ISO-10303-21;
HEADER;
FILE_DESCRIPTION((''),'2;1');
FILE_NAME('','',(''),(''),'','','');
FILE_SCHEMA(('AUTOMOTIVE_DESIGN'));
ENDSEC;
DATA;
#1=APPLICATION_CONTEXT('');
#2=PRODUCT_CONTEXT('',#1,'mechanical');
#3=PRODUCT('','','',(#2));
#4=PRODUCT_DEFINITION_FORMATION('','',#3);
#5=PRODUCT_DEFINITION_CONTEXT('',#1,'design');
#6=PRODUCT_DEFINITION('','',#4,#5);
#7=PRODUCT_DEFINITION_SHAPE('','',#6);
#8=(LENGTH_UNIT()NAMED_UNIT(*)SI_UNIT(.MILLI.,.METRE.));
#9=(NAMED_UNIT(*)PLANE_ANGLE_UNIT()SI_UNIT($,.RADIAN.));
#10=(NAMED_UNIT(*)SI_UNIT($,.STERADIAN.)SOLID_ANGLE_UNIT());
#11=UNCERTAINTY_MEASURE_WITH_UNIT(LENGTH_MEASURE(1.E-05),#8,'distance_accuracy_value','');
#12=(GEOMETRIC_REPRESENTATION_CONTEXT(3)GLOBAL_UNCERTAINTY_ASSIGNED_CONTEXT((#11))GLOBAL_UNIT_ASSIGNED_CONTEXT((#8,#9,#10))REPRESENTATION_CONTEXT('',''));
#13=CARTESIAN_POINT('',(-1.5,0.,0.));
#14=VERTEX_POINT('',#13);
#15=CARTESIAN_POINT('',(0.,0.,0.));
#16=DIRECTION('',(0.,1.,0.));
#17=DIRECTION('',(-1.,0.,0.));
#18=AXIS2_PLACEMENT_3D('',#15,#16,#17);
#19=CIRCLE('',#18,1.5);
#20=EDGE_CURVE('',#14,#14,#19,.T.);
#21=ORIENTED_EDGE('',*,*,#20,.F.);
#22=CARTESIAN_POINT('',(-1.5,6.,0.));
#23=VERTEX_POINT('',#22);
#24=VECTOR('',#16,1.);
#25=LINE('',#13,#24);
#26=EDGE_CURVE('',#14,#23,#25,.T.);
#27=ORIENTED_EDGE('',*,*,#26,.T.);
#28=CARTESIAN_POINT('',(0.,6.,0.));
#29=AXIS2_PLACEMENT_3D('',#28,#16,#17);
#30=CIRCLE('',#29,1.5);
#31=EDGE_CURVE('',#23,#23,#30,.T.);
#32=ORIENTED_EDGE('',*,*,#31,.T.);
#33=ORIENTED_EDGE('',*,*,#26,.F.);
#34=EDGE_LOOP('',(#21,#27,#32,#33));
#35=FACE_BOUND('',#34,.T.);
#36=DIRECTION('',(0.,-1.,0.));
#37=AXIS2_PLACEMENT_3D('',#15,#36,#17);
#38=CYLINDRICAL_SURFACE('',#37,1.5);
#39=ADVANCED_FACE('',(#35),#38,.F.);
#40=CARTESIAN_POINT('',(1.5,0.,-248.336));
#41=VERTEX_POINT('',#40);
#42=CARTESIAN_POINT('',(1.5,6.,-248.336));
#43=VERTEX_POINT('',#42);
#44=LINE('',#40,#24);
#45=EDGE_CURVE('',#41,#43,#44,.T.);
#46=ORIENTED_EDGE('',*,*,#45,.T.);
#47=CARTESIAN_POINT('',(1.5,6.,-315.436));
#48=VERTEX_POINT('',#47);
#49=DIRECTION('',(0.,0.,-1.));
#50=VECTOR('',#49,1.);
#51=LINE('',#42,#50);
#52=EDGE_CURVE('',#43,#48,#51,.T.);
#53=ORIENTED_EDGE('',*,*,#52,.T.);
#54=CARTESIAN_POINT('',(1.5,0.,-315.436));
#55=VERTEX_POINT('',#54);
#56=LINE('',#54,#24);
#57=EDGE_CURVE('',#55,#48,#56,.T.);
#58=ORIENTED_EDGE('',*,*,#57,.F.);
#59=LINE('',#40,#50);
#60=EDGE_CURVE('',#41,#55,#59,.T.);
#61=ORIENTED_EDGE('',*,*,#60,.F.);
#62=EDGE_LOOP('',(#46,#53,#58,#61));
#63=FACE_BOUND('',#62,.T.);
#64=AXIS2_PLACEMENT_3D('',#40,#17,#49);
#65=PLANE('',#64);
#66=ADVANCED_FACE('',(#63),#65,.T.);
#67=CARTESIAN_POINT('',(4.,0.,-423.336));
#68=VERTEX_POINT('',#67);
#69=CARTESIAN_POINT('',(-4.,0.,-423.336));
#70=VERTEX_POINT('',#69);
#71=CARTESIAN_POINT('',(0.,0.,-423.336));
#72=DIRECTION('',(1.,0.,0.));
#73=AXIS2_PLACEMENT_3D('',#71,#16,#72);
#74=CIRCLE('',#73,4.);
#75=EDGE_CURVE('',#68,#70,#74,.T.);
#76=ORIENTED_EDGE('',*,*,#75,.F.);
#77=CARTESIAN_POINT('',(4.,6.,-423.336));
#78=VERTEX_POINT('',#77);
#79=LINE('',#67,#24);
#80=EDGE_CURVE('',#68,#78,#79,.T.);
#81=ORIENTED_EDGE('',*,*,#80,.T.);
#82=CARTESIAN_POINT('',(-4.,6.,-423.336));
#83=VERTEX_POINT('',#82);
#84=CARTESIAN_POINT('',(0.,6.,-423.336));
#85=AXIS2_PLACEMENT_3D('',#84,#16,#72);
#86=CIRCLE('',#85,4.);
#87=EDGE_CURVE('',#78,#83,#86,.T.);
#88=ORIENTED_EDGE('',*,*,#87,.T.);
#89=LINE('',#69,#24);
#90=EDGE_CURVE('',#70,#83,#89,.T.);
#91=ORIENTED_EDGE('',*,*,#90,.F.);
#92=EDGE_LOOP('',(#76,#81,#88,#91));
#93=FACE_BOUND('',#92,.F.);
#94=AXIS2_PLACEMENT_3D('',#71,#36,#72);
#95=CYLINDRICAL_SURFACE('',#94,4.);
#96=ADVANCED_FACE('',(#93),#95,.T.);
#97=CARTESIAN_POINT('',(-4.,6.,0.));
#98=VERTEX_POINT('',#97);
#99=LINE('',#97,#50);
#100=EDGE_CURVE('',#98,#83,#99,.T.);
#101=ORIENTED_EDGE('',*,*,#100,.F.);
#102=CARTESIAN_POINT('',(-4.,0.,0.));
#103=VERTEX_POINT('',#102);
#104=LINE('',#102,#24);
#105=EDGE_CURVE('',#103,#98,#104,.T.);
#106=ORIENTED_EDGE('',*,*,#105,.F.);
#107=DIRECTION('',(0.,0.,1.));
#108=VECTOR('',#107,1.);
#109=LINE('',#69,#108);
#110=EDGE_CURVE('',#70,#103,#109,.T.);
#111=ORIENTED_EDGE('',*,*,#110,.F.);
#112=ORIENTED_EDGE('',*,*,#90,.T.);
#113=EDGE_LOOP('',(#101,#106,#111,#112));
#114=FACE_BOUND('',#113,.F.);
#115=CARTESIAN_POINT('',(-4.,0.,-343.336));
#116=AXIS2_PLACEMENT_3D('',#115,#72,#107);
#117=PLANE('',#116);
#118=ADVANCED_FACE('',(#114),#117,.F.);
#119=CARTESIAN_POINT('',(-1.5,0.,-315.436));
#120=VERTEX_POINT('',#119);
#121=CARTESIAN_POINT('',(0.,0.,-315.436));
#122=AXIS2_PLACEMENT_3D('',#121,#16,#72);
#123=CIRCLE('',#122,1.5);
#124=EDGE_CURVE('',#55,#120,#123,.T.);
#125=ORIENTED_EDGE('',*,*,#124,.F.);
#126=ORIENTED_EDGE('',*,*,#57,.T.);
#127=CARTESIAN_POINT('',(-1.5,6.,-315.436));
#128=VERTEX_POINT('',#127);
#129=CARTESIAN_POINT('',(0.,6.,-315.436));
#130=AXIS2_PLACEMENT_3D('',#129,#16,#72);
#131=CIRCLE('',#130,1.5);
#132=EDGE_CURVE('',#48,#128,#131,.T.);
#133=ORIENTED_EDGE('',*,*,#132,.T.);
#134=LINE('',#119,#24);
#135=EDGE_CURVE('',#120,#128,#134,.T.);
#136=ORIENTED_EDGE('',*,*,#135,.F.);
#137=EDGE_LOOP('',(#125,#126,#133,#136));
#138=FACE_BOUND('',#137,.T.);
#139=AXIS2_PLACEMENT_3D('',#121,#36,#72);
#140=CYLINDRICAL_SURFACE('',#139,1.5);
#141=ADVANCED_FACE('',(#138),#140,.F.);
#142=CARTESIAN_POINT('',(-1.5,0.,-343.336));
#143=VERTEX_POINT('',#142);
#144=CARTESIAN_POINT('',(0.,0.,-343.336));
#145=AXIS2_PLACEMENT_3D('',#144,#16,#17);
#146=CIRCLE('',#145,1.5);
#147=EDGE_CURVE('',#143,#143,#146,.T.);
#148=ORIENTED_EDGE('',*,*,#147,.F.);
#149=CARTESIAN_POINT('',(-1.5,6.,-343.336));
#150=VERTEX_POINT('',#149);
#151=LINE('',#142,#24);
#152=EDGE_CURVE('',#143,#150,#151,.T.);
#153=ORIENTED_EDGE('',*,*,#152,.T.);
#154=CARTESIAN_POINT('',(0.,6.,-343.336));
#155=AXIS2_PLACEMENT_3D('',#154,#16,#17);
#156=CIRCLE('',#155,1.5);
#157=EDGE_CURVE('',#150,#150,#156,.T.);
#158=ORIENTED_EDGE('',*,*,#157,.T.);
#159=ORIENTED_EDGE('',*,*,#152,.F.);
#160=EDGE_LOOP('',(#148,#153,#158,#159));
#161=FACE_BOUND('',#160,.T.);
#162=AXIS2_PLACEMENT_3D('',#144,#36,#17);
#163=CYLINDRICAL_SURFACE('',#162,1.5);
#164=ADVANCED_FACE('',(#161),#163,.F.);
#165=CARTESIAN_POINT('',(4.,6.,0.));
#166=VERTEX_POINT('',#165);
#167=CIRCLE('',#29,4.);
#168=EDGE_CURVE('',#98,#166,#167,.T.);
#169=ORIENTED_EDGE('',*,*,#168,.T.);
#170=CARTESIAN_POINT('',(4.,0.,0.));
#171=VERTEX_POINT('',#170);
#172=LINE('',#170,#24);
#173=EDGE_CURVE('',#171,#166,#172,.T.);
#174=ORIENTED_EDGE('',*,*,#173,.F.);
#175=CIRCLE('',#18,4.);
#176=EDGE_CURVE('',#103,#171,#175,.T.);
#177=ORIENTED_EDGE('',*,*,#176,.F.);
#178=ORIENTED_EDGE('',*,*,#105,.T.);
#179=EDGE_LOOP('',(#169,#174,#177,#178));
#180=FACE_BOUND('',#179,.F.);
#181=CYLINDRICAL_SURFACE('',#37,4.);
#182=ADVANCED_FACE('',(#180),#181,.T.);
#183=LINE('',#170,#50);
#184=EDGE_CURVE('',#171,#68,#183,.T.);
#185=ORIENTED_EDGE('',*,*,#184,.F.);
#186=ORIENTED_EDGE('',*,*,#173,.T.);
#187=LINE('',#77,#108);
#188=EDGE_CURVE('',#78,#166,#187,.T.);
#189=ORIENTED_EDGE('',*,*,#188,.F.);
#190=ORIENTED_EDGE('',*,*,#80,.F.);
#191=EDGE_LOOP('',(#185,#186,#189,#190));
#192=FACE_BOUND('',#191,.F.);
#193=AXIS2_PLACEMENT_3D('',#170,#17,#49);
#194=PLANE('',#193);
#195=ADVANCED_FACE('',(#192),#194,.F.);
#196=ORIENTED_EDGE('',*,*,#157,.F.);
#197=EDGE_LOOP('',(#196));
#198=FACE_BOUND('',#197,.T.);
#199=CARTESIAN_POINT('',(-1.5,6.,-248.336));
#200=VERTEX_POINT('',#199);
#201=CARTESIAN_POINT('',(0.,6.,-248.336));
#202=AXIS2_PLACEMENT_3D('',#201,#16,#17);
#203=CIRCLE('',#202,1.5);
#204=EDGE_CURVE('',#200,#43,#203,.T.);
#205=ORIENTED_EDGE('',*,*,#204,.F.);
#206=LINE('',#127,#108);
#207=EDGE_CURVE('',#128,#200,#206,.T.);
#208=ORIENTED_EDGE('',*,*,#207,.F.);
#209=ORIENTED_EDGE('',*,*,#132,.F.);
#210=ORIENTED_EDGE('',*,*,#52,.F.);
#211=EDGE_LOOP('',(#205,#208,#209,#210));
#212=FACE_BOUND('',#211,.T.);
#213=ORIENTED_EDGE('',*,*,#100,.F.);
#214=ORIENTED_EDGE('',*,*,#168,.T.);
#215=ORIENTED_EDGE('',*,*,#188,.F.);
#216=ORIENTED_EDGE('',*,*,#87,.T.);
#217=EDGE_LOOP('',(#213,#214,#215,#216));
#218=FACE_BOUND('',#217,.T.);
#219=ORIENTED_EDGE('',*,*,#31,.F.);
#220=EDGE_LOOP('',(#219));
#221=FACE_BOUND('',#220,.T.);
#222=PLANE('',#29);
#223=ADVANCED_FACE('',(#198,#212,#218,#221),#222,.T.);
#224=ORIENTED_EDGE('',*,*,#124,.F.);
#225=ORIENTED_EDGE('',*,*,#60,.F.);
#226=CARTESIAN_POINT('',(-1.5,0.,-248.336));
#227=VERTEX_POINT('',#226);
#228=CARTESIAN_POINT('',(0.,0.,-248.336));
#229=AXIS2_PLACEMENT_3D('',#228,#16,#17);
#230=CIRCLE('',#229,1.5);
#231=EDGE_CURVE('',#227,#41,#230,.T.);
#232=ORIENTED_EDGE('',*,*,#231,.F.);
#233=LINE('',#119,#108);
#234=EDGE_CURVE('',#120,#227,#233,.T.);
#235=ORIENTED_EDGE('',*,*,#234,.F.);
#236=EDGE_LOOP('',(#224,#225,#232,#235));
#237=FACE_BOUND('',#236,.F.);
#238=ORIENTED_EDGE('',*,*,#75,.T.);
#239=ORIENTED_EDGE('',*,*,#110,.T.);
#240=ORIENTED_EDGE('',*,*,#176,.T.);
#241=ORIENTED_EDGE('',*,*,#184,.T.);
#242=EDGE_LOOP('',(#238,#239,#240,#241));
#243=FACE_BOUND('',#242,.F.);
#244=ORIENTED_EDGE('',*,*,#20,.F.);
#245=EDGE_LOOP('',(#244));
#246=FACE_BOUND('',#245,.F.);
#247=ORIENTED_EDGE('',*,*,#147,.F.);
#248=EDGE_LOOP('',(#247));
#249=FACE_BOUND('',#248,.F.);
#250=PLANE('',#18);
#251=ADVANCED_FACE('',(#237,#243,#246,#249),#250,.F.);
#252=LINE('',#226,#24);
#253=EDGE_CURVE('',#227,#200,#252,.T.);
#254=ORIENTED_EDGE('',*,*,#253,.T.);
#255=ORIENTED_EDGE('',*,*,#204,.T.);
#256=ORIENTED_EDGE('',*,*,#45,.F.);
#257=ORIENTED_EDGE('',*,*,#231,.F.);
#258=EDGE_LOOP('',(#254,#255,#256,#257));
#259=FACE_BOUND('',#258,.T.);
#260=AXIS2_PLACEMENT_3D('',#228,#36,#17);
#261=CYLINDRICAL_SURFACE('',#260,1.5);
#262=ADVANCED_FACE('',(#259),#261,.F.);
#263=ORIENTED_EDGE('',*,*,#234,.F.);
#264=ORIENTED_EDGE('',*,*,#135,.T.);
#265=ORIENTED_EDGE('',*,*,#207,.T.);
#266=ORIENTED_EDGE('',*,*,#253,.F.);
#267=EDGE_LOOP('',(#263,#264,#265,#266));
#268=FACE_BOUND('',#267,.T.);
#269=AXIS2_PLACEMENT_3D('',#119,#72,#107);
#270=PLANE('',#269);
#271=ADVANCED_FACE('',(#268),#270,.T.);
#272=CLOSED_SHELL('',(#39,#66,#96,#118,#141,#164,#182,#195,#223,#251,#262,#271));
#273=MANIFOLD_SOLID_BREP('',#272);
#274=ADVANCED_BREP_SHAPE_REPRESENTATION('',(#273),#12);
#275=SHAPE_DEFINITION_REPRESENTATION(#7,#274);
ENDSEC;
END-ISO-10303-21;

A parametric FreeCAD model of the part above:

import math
import FreeCAD as App
import Part
import Sketcher
from FreeCAD import Vector

doc = App.newDocument("Part")
params = doc.addObject("Spreadsheet::Sheet", "Params")
for row, (alias, value) in enumerate([
    ("sketch1_diameter", "3 mm"),
    ("sketch1_radius", "4 mm"),
    ("pad1_length", "6 mm"),
], start=1):
    params.set(f"A{row}", alias)
    params.set(f"B{row}", "=" + value)
    params.setAlias(f"B{row}", alias)

body = doc.addObject("PartDesign::Body", "Body")

sketch1 = body.newObject("Sketcher::SketchObject", "Sketch")
sketch1.AttachmentSupport = (doc.getObject("XZ_Plane"), [""])
sketch1.MapMode = "FlatFace"
sketch1.addGeometry(Part.ArcOfCircle(Part.Circle(Vector(0, 0, 0), Vector(0, 0, 1), 4), math.radians(0), math.radians(180)), False)
sketch1.addGeometry(Part.LineSegment(Vector(4, 0, 0), Vector(4, -423.3, 0)), False)
sketch1.addGeometry(Part.ArcOfCircle(Part.Circle(Vector(0, -423.3, 0), Vector(0, 0, 1), 4), math.radians(180), math.radians(360)), False)
sketch1.addGeometry(Part.LineSegment(Vector(-4, -423.3, 0), Vector(-4, 0, 0)), False)
sketch1.addGeometry(Part.LineSegment(Vector(-1.5, -248.3, 0), Vector(-1.5, -315.4, 0)), False)
sketch1.addGeometry(Part.ArcOfCircle(Part.Circle(Vector(0, -315.4, 0), Vector(0, 0, 1), 1.5), math.radians(180), math.radians(360)), False)
sketch1.addGeometry(Part.LineSegment(Vector(1.5, -315.4, 0), Vector(1.5, -248.3, 0)), False)
sketch1.addGeometry(Part.ArcOfCircle(Part.Circle(Vector(0, -248.3, 0), Vector(0, 0, 1), 1.5), math.radians(0), math.radians(180)), False)
sketch1.addGeometry(Part.Circle(Vector(0, 0, 0), Vector(0, 0, 1), 1.5), False)
sketch1.addGeometry(Part.Circle(Vector(0, -343.3, 0), Vector(0, 0, 1), 1.5), False)
sketch1.addConstraint(Sketcher.Constraint("Tangent", 0, 1, 1, 1))
sketch1.addConstraint(Sketcher.Constraint("Tangent", 1, 2, 2, 2))
sketch1.addConstraint(Sketcher.Constraint("Tangent", 2, 1, 3, 1))
sketch1.addConstraint(Sketcher.Constraint("Tangent", 3, 2, 0, 2))
sketch1.addConstraint(Sketcher.Constraint("Tangent", 4, 2, 5, 1))
sketch1.addConstraint(Sketcher.Constraint("Tangent", 5, 2, 6, 1))
sketch1.addConstraint(Sketcher.Constraint("Tangent", 6, 2, 7, 1))
sketch1.addConstraint(Sketcher.Constraint("Tangent", 7, 2, 4, 1))
sketch1.addConstraint(Sketcher.Constraint("Vertical", 1))
sketch1.addConstraint(Sketcher.Constraint("Vertical", 3))
sketch1.addConstraint(Sketcher.Constraint("Vertical", 4))
sketch1.addConstraint(Sketcher.Constraint("Vertical", 6))
sketch1.addConstraint(Sketcher.Constraint("Coincident", 0, 3, -1, 1))
sketch1.addConstraint(Sketcher.Constraint("Coincident", 8, 3, -1, 1))
sketch1.addConstraint(Sketcher.Constraint("Equal", 7, 8))
sketch1.addConstraint(Sketcher.Constraint("Equal", 8, 9))
sketch1.addConstraint(Sketcher.Constraint("PointOnObject", 5, 3, -2))
sketch1.addConstraint(Sketcher.Constraint("PointOnObject", 9, 3, -2))
sketch1.addConstraint(Sketcher.Constraint("Diameter", 8, 3.0))
sketch1.addConstraint(Sketcher.Constraint("Radius", 0, 4.0))
sketch1.addConstraint(Sketcher.Constraint("DistanceY", 2, 3, 9, 3, 80.0))
sketch1.addConstraint(Sketcher.Constraint("DistanceY", 9, 3, 7, 3, 95.0))
sketch1.addConstraint(Sketcher.Constraint("DistanceY", 9, 3, 5, 3, 27.9))
sketch1.addConstraint(Sketcher.Constraint("DistanceY", 9, 3, -1, 1, 343.336))
sketch1.setExpression("Constraints[18]", "Params.sketch1_diameter")
sketch1.setExpression("Constraints[19]", "Params.sketch1_radius")
pad1 = body.newObject("PartDesign::Pad", "Pad")
pad1.Profile = sketch1
pad1.setExpression("Length", "Params.pad1_length")
pad1.Reversed = True

doc.recompute()
